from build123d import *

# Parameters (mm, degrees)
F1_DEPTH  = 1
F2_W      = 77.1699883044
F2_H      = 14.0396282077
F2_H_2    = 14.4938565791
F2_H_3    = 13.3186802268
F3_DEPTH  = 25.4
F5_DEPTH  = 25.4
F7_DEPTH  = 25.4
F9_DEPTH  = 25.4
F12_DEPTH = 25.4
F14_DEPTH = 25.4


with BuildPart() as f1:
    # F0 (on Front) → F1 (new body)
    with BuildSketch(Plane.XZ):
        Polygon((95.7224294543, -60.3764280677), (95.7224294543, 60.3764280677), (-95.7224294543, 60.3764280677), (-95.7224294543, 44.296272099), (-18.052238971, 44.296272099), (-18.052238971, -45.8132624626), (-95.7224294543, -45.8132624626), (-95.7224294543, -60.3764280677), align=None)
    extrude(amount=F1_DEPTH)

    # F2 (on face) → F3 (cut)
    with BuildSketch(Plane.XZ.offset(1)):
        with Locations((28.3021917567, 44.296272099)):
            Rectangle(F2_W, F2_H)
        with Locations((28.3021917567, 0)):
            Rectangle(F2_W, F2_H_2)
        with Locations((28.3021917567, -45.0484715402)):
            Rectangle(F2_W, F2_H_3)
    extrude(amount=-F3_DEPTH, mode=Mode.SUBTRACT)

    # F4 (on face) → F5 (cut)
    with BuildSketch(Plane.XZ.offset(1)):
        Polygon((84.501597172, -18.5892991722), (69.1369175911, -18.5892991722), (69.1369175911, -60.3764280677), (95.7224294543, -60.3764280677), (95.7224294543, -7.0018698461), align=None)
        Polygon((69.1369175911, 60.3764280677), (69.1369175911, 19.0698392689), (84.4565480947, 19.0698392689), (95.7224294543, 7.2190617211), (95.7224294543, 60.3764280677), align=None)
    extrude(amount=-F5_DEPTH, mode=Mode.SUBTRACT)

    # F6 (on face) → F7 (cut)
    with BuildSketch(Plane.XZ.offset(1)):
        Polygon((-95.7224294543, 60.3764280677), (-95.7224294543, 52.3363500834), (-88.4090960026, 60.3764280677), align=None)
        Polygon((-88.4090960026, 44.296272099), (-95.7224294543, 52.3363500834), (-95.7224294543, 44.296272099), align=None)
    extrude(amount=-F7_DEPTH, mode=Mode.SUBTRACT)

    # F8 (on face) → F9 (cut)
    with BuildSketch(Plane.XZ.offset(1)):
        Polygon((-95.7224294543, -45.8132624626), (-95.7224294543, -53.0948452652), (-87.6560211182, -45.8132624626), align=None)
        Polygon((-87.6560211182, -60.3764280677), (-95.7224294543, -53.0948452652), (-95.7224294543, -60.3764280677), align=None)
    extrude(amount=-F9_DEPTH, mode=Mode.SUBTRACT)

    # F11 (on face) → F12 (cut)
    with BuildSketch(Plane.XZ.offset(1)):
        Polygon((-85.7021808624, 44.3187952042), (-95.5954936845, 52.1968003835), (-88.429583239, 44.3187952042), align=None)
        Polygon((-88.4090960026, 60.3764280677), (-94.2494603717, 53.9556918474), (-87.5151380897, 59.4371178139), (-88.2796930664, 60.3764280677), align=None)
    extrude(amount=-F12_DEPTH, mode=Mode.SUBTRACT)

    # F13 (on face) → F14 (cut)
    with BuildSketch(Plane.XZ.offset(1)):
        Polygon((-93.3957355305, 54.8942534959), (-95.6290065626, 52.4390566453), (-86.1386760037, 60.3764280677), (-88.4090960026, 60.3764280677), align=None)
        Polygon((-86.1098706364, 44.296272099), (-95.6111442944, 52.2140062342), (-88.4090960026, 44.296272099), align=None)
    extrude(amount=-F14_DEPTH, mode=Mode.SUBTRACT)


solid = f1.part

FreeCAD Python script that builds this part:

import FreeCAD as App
import Part
import Sketcher
from FreeCAD import Vector

doc = App.newDocument("Part")
body = doc.addObject("PartDesign::Body", "Body")

# Sketch on XZ plane
sketch1 = body.newObject("Sketcher::SketchObject", "Sketch")
sketch1.AttachmentSupport = (doc.getObject("XZ_Plane"), [""])
sketch1.MapMode = "FlatFace"
sketch1.addGeometry(Part.LineSegment(Vector(95.722429, -60.376428, 0), Vector(95.722429, 60.376428, 0)), False)
sketch1.addGeometry(Part.LineSegment(Vector(95.722429, 60.376428, 0), Vector(-95.722429, 60.376428, 0)), False)
sketch1.addGeometry(Part.LineSegment(Vector(-95.722429, 60.376428, 0), Vector(-95.722429, 44.296272, 0)), False)
sketch1.addGeometry(Part.LineSegment(Vector(-95.722429, 44.296272, 0), Vector(-18.052239, 44.296272, 0)), False)
sketch1.addGeometry(Part.LineSegment(Vector(-18.052239, 44.296272, 0), Vector(-18.052239, -45.813262, 0)), False)
sketch1.addGeometry(Part.LineSegment(Vector(-18.052239, -45.813262, 0), Vector(-95.722429, -45.813262, 0)), False)
sketch1.addGeometry(Part.LineSegment(Vector(-95.722429, -45.813262, 0), Vector(-95.722429, -60.376428, 0)), False)
sketch1.addGeometry(Part.LineSegment(Vector(-95.722429, -60.376428, 0), Vector(95.722429, -60.376428, 0)), False)
sketch1.addConstraint(Sketcher.Constraint("Coincident", 0, 2, 1, 1))
sketch1.addConstraint(Sketcher.Constraint("Coincident", 1, 2, 2, 1))
sketch1.addConstraint(Sketcher.Constraint("Coincident", 2, 2, 3, 1))
sketch1.addConstraint(Sketcher.Constraint("Coincident", 3, 2, 4, 1))
sketch1.addConstraint(Sketcher.Constraint("Coincident", 4, 2, 5, 1))
sketch1.addConstraint(Sketcher.Constraint("Coincident", 5, 2, 6, 1))
sketch1.addConstraint(Sketcher.Constraint("Coincident", 6, 2, 7, 1))
sketch1.addConstraint(Sketcher.Constraint("Coincident", 7, 2, 0, 1))
sketch1.addConstraint(Sketcher.Constraint("Vertical", 0))
sketch1.addConstraint(Sketcher.Constraint("Horizontal", 1))
sketch1.addConstraint(Sketcher.Constraint("Vertical", 2))
sketch1.addConstraint(Sketcher.Constraint("Horizontal", 3))
sketch1.addConstraint(Sketcher.Constraint("Vertical", 4))
sketch1.addConstraint(Sketcher.Constraint("Horizontal", 5))
sketch1.addConstraint(Sketcher.Constraint("Vertical", 6))
sketch1.addConstraint(Sketcher.Constraint("Horizontal", 7))
sketch1.addConstraint(Sketcher.Constraint("Symmetric", 0, 2, 6, 2, -1, 1))
sketch1.addConstraint(Sketcher.Constraint("Vertical", 2, 2, 5, 2))
sketch1.addConstraint(Sketcher.Constraint("DistanceX", 1, 2, 1, 1, 191.444859))
sketch1.addConstraint(Sketcher.Constraint("DistanceX", 3, 1, 3, 2, 77.67019))
sketch1.addConstraint(Sketcher.Constraint("DistanceY", 6, 2, 2, 2, 104.6727))
sketch1.addConstraint(Sketcher.Constraint("DistanceY", 0, 1, 0, 2, 120.752856))
sketch1.addConstraint(Sketcher.Constraint("DistanceY", 4, 2, 4, 1, 90.109535))
pad1 = body.newObject("PartDesign::Pad", "Pad")
pad1.Profile = sketch1
pad1.Length = 1

# Sketch on XZ plane
sketch2 = body.newObject("Sketcher::SketchObject", "Sketch001")
sketch2.AttachmentSupport = (doc.getObject("XZ_Plane"), [""])
sketch2.MapMode = "FlatFace"
sketch2.AttachmentOffset = App.Placement(Vector(0, 0, 1), App.Rotation())
sketch2.addGeometry(Part.LineSegment(Vector(-10.282802, 51.316086, 0), Vector(-10.282802, 37.276458, 0)), False)
sketch2.addGeometry(Part.LineSegment(Vector(-10.282802, 37.276458, 0), Vector(66.887186, 37.276458, 0)), False)
sketch2.addGeometry(Part.LineSegment(Vector(66.887186, 37.276458, 0), Vector(66.887186, 51.316086, 0)), False)
sketch2.addGeometry(Part.LineSegment(Vector(66.887186, 51.316086, 0), Vector(-10.282802, 51.316086, 0)), False)
sketch2.addGeometry(Part.LineSegment(Vector(-10.282802, 7.246928, 0), Vector(-10.282802, -7.246928, 0)), False)
sketch2.addGeometry(Part.LineSegment(Vector(-10.282802, -7.246928, 0), Vector(66.887186, -7.246928, 0)), False)
sketch2.addGeometry(Part.LineSegment(Vector(66.887186, -7.246928, 0), Vector(66.887186, 7.246928, 0)), False)
sketch2.addGeometry(Part.LineSegment(Vector(66.887186, 7.246928, 0), Vector(-10.282802, 7.246928, 0)), False)
sketch2.addGeometry(Part.LineSegment(Vector(-10.282802, -38.389131, 0), Vector(-10.282802, -51.707812, 0)), False)
sketch2.addGeometry(Part.LineSegment(Vector(-10.282802, -51.707812, 0), Vector(66.887186, -51.707812, 0)), False)
sketch2.addGeometry(Part.LineSegment(Vector(66.887186, -51.707812, 0), Vector(66.887186, -38.389131, 0)), False)
sketch2.addGeometry(Part.LineSegment(Vector(66.887186, -38.389131, 0), Vector(-10.282802, -38.389131, 0)), False)
sketch2.addConstraint(Sketcher.Constraint("Coincident", 0, 2, 1, 1))
sketch2.addConstraint(Sketcher.Constraint("Coincident", 1, 2, 2, 1))
sketch2.addConstraint(Sketcher.Constraint("Coincident", 2, 2, 3, 1))
sketch2.addConstraint(Sketcher.Constraint("Coincident", 3, 2, 0, 1))
sketch2.addConstraint(Sketcher.Constraint("Coincident", 4, 2, 5, 1))
sketch2.addConstraint(Sketcher.Constraint("Coincident", 5, 2, 6, 1))
sketch2.addConstraint(Sketcher.Constraint("Coincident", 6, 2, 7, 1))
sketch2.addConstraint(Sketcher.Constraint("Coincident", 7, 2, 4, 1))
sketch2.addConstraint(Sketcher.Constraint("Coincident", 8, 2, 9, 1))
sketch2.addConstraint(Sketcher.Constraint("Coincident", 9, 2, 10, 1))
sketch2.addConstraint(Sketcher.Constraint("Coincident", 10, 2, 11, 1))
sketch2.addConstraint(Sketcher.Constraint("Coincident", 11, 2, 8, 1))
sketch2.addConstraint(Sketcher.Constraint("Vertical", 0))
sketch2.addConstraint(Sketcher.Constraint("Horizontal", 1))
sketch2.addConstraint(Sketcher.Constraint("Vertical", 2))
sketch2.addConstraint(Sketcher.Constraint("Horizontal", 3))
sketch2.addConstraint(Sketcher.Constraint("Vertical", 4))
sketch2.addConstraint(Sketcher.Constraint("Horizontal", 5))
sketch2.addConstraint(Sketcher.Constraint("Vertical", 6))
sketch2.addConstraint(Sketcher.Constraint("Horizontal", 7))
sketch2.addConstraint(Sketcher.Constraint("Vertical", 8))
sketch2.addConstraint(Sketcher.Constraint("Horizontal", 9))
sketch2.addConstraint(Sketcher.Constraint("Vertical", 10))
sketch2.addConstraint(Sketcher.Constraint("Horizontal", 11))
sketch2.addConstraint(Sketcher.Constraint("Vertical", 3, 2, 4, 2))
sketch2.addConstraint(Sketcher.Constraint("Vertical", 2, 2, 5, 2))
sketch2.addConstraint(Sketcher.Constraint("Vertical", 7, 2, 8, 2))
sketch2.addConstraint(Sketcher.Constraint("Vertical", 6, 2, 9, 2))
sketch2.addConstraint(Sketcher.Constraint("DistanceX", 1, 1, 1, 2, 77.169988))
sketch2.addConstraint(Sketcher.Constraint("DistanceY", 0, 2, 0, 1, 14.039628))
sketch2.addConstraint(Sketcher.Constraint("DistanceY", 8, 2, 8, 1, 13.31868))
sketch2.addConstraint(Sketcher.Constraint("DistanceY", 4, 2, 4, 1, 14.493857))
sketch2.addConstraint(Sketcher.Constraint("DistanceY", 4, 2, -1, 1, 7.246928))
sketch2.addConstraint(Sketcher.Constraint("DistanceY", 8, 2, -1, 1, 51.707812))
sketch2.addConstraint(Sketcher.Constraint("DistanceY", 6, 2, 1, 2, 30.02953))
sketch2.addConstraint(Sketcher.Constraint("DistanceX", 0, 2, -1, 1, 10.282802))
pocket1 = body.newObject("PartDesign::Pocket", "Pocket")
pocket1.Profile = sketch2
pocket1.Length = 25.4

# Sketch on XZ plane
sketch3 = body.newObject("Sketcher::SketchObject", "Sketch002")
sketch3.AttachmentSupport = (doc.getObject("XZ_Plane"), [""])
sketch3.MapMode = "FlatFace"
sketch3.AttachmentOffset = App.Placement(Vector(0, 0, 1), App.Rotation())
sketch3.addGeometry(Part.LineSegment(Vector(84.501597, -18.589299, 0), Vector(69.136918, -18.589299, 0)), False)
sketch3.addGeometry(Part.LineSegment(Vector(69.136918, -18.589299, 0), Vector(69.136918, -60.376428, 0)), False)
sketch3.addGeometry(Part.LineSegment(Vector(69.136918, -60.376428, 0), Vector(95.722429, -60.376428, 0)), False)
sketch3.addGeometry(Part.LineSegment(Vector(95.722429, -60.376428, 0), Vector(95.722429, -7.00187, 0)), False)
sketch3.addGeometry(Part.LineSegment(Vector(95.722429, -7.00187, 0), Vector(84.501597, -18.589299, 0)), False)
sketch3.addGeometry(Part.LineSegment(Vector(69.136918, 60.376428, 0), Vector(69.136918, 19.069839, 0)), False)
sketch3.addGeometry(Part.LineSegment(Vector(69.136918, 19.069839, 0), Vector(84.456548, 19.069839, 0)), False)
sketch3.addGeometry(Part.LineSegment(Vector(84.456548, 19.069839, 0), Vector(95.722429, 7.219062, 0)), False)
sketch3.addGeometry(Part.LineSegment(Vector(95.722429, 7.219062, 0), Vector(95.722429, 60.376428, 0)), False)
sketch3.addGeometry(Part.LineSegment(Vector(95.722429, 60.376428, 0), Vector(69.136918, 60.376428, 0)), False)
sketch3.addConstraint(Sketcher.Constraint("Coincident", 0, 2, 1, 1))
sketch3.addConstraint(Sketcher.Constraint("Coincident", 1, 2, 2, 1))
sketch3.addConstraint(Sketcher.Constraint("Coincident", 2, 2, 3, 1))
sketch3.addConstraint(Sketcher.Constraint("Coincident", 3, 2, 4, 1))
sketch3.addConstraint(Sketcher.Constraint("Coincident", 4, 2, 0, 1))
sketch3.addConstraint(Sketcher.Constraint("Coincident", 5, 2, 6, 1))
sketch3.addConstraint(Sketcher.Constraint("Coincident", 6, 2, 7, 1))
sketch3.addConstraint(Sketcher.Constraint("Coincident", 7, 2, 8, 1))
sketch3.addConstraint(Sketcher.Constraint("Coincident", 8, 2, 9, 1))
sketch3.addConstraint(Sketcher.Constraint("Coincident", 9, 2, 5, 1))
sketch3.addConstraint(Sketcher.Constraint("Horizontal", 0))
sketch3.addConstraint(Sketcher.Constraint("Vertical", 1))
sketch3.addConstraint(Sketcher.Constraint("Horizontal", 2))
sketch3.addConstraint(Sketcher.Constraint("Vertical", 3))
sketch3.addConstraint(Sketcher.Constraint("Vertical", 5))
sketch3.addConstraint(Sketcher.Constraint("Horizontal", 6))
sketch3.addConstraint(Sketcher.Constraint("Vertical", 8))
sketch3.addConstraint(Sketcher.Constraint("Horizontal", 9))
sketch3.addConstraint(Sketcher.Constraint("Symmetric", 2, 2, 8, 2, -1))
sketch3.addConstraint(Sketcher.Constraint("Vertical", 1, 2, 5, 2))
sketch3.addConstraint(Sketcher.Constraint("DistanceX", 0, 2, 0, 1, 15.36468))
sketch3.addConstraint(Sketcher.Constraint("DistanceX", 2, 1, 2, 2, 26.585512))
sketch3.addConstraint(Sketcher.Constraint("DistanceX", 6, 1, 6, 2, 15.319631))
sketch3.addConstraint(Sketcher.Constraint("DistanceY", 1, 2, 1, 1, 41.787129))
sketch3.addConstraint(Sketcher.Constraint("DistanceY", 3, 1, 3, 2, 53.374558))
sketch3.addConstraint(Sketcher.Constraint("DistanceY", 5, 2, 5, 1, 41.306589))
sketch3.addConstraint(Sketcher.Constraint("DistanceY", 0, 2, -1, 1, 18.589299))
sketch3.addConstraint(Sketcher.Constraint("DistanceY", 8, 1, 8, 2, 53.157366))
sketch3.addConstraint(Sketcher.Constraint("DistanceX", -1, 1, 2, 2, 95.722429))
pocket2 = body.newObject("PartDesign::Pocket", "Pocket001")
pocket2.Profile = sketch3
pocket2.Length = 25.4

# Sketch on XZ plane
sketch4 = body.newObject("Sketcher::SketchObject", "Sketch003")
sketch4.AttachmentSupport = (doc.getObject("XZ_Plane"), [""])
sketch4.MapMode = "FlatFace"
sketch4.AttachmentOffset = App.Placement(Vector(0, 0, 1), App.Rotation())
sketch4.addGeometry(Part.LineSegment(Vector(-95.722429, 60.376428, 0), Vector(-95.722429, 52.33635, 0)), False)
sketch4.addGeometry(Part.LineSegment(Vector(-95.722429, 52.33635, 0), Vector(-88.409096, 60.376428, 0)), False)
sketch4.addGeometry(Part.LineSegment(Vector(-88.409096, 60.376428, 0), Vector(-95.722429, 60.376428, 0)), False)
sketch4.addGeometry(Part.LineSegment(Vector(-88.409096, 44.296272, 0), Vector(-95.722429, 52.33635, 0)), False)
sketch4.addGeometry(Part.LineSegment(Vector(-95.722429, 52.33635, 0), Vector(-95.722429, 44.296272, 0)), False)
sketch4.addGeometry(Part.LineSegment(Vector(-95.722429, 44.296272, 0), Vector(-88.409096, 44.296272, 0)), False)
sketch4.addConstraint(Sketcher.Constraint("Coincident", 0, 2, 1, 1))
sketch4.addConstraint(Sketcher.Constraint("Coincident", 1, 2, 2, 1))
sketch4.addConstraint(Sketcher.Constraint("Coincident", 2, 2, 0, 1))
sketch4.addConstraint(Sketcher.Constraint("Coincident", 3, 2, 4, 1))
sketch4.addConstraint(Sketcher.Constraint("Coincident", 4, 2, 5, 1))
sketch4.addConstraint(Sketcher.Constraint("Coincident", 5, 2, 3, 1))
sketch4.addConstraint(Sketcher.Constraint("Vertical", 0))
sketch4.addConstraint(Sketcher.Constraint("Horizontal", 2))
sketch4.addConstraint(Sketcher.Constraint("Vertical", 4))
sketch4.addConstraint(Sketcher.Constraint("Horizontal", 5))
sketch4.addConstraint(Sketcher.Constraint("Coincident", 3, 2, 0, 2))
sketch4.addConstraint(Sketcher.Constraint("Vertical", 1, 2, 5, 2))
sketch4.addConstraint(Sketcher.Constraint("Equal", 0, 4))
sketch4.addConstraint(Sketcher.Constraint("DistanceX", 2, 2, 2, 1, 7.313333))
sketch4.addConstraint(Sketcher.Constraint("DistanceY", 0, 2, 0, 1, 8.040078))
sketch4.addConstraint(Sketcher.Constraint("DistanceX", 0, 2, -1, 1, 95.722429))
sketch4.addConstraint(Sketcher.Constraint("DistanceY", -1, 1, 0, 2, 52.33635))
pocket3 = body.newObject("PartDesign::Pocket", "Pocket002")
pocket3.Profile = sketch4
pocket3.Length = 25.4

# Sketch on XZ plane
sketch5 = body.newObject("Sketcher::SketchObject", "Sketch004")
sketch5.AttachmentSupport = (doc.getObject("XZ_Plane"), [""])
sketch5.MapMode = "FlatFace"
sketch5.AttachmentOffset = App.Placement(Vector(0, 0, 1), App.Rotation())
sketch5.addGeometry(Part.LineSegment(Vector(-95.722429, -45.813262, 0), Vector(-95.722429, -53.094845, 0)), False)
sketch5.addGeometry(Part.LineSegment(Vector(-95.722429, -53.094845, 0), Vector(-87.656021, -45.813262, 0)), False)
sketch5.addGeometry(Part.LineSegment(Vector(-87.656021, -45.813262, 0), Vector(-95.722429, -45.813262, 0)), False)
sketch5.addGeometry(Part.LineSegment(Vector(-87.656021, -60.376428, 0), Vector(-95.722429, -53.094845, 0)), False)
sketch5.addGeometry(Part.LineSegment(Vector(-95.722429, -53.094845, 0), Vector(-95.722429, -60.376428, 0)), False)
sketch5.addGeometry(Part.LineSegment(Vector(-95.722429, -60.376428, 0), Vector(-87.656021, -60.376428, 0)), False)
sketch5.addConstraint(Sketcher.Constraint("Coincident", 0, 2, 1, 1))
sketch5.addConstraint(Sketcher.Constraint("Coincident", 1, 2, 2, 1))
sketch5.addConstraint(Sketcher.Constraint("Coincident", 2, 2, 0, 1))
sketch5.addConstraint(Sketcher.Constraint("Coincident", 3, 2, 4, 1))
sketch5.addConstraint(Sketcher.Constraint("Coincident", 4, 2, 5, 1))
sketch5.addConstraint(Sketcher.Constraint("Coincident", 5, 2, 3, 1))
sketch5.addConstraint(Sketcher.Constraint("Vertical", 0))
sketch5.addConstraint(Sketcher.Constraint("Horizontal", 2))
sketch5.addConstraint(Sketcher.Constraint("Vertical", 4))
sketch5.addConstraint(Sketcher.Constraint("Horizontal", 5))
sketch5.addConstraint(Sketcher.Constraint("Coincident", 3, 2, 0, 2))
sketch5.addConstraint(Sketcher.Constraint("Vertical", 1, 2, 5, 2))
sketch5.addConstraint(Sketcher.Constraint("Equal", 0, 4))
sketch5.addConstraint(Sketcher.Constraint("DistanceX", 2, 2, 2, 1, 8.066408))
sketch5.addConstraint(Sketcher.Constraint("Distance", 1, 10.866848))
sketch5.addConstraint(Sketcher.Constraint("DistanceX", 0, 2, -1, 1, 95.722429))
sketch5.addConstraint(Sketcher.Constraint("DistanceY", 4, 2, -1, 1, 60.376428))
pocket4 = body.newObject("PartDesign::Pocket", "Pocket003")
pocket4.Profile = sketch5
pocket4.Length = 25.4

# Sketch on XZ plane
sketch6 = body.newObject("Sketcher::SketchObject", "Sketch005")
sketch6.AttachmentSupport = (doc.getObject("XZ_Plane"), [""])
sketch6.MapMode = "FlatFace"
sketch6.AttachmentOffset = App.Placement(Vector(0, 0, 1), App.Rotation())
sketch6.addGeometry(Part.LineSegment(Vector(-85.702181, 44.318795, 0), Vector(-95.595494, 52.1968, 0)), False)
sketch6.addGeometry(Part.LineSegment(Vector(-95.595494, 52.1968, 0), Vector(-88.429583, 44.318795, 0)), False)
sketch6.addGeometry(Part.LineSegment(Vector(-88.429583, 44.318795, 0), Vector(-85.702181, 44.318795, 0)), False)
sketch6.addGeometry(Part.LineSegment(Vector(-88.409096, 60.376428, 0), Vector(-94.24946, 53.955692, 0)), False)
sketch6.addGeometry(Part.LineSegment(Vector(-94.24946, 53.955692, 0), Vector(-87.515138, 59.437118, 0)), False)
sketch6.addGeometry(Part.LineSegment(Vector(-87.515138, 59.437118, 0), Vector(-88.279693, 60.376428, 0)), False)
sketch6.addGeometry(Part.LineSegment(Vector(-88.279693, 60.376428, 0), Vector(-88.409096, 60.376428, 0)), False)
sketch6.addConstraint(Sketcher.Constraint("Coincident", 0, 2, 1, 1))
sketch6.addConstraint(Sketcher.Constraint("Coincident", 1, 2, 2, 1))
sketch6.addConstraint(Sketcher.Constraint("Coincident", 2, 2, 0, 1))
sketch6.addConstraint(Sketcher.Constraint("Coincident", 3, 2, 4, 1))
sketch6.addConstraint(Sketcher.Constraint("Coincident", 4, 2, 5, 1))
sketch6.addConstraint(Sketcher.Constraint("Coincident", 5, 2, 6, 1))
sketch6.addConstraint(Sketcher.Constraint("Coincident", 6, 2, 3, 1))
sketch6.addConstraint(Sketcher.Constraint("Horizontal", 2))
sketch6.addConstraint(Sketcher.Constraint("Horizontal", 6))
sketch6.addConstraint(Sketcher.Constraint("Perpendicular", 4, 5))
sketch6.addConstraint(Sketcher.Constraint("DistanceY", -1, 1, 0, 2, 52.1968))
sketch6.addConstraint(Sketcher.Constraint("DistanceX", 0, 2, 5, 2, 7.315801))
sketch6.addConstraint(Sketcher.Constraint("Distance", 4, 8.683152))
sketch6.addConstraint(Sketcher.Constraint("DistanceX", 2, 1, 2, 2, 2.727402))
sketch6.addConstraint(Sketcher.Constraint("DistanceX", 6, 2, 6, 1, 0.129403))
sketch6.addConstraint(Sketcher.Constraint("DistanceX", 2, 2, -1, 1, 85.702181))
sketch6.addConstraint(Sketcher.Constraint("DistanceX", 3, 2, -1, 1, 94.24946))
sketch6.addConstraint(Sketcher.Constraint("DistanceY", -1, 1, 3, 2, 53.955692))
sketch6.addConstraint(Sketcher.Constraint("DistanceX", 4, 2, -1, 1, 87.515138))
sketch6.addConstraint(Sketcher.Constraint("DistanceY", -1, 1, 5, 2, 60.376428))
sketch6.addConstraint(Sketcher.Constraint("Distance", 0, 12.646763))
pocket5 = body.newObject("PartDesign::Pocket", "Pocket004")
pocket5.Profile = sketch6
pocket5.Length = 25.4

# Sketch on XZ plane
sketch7 = body.newObject("Sketcher::SketchObject", "Sketch006")
sketch7.AttachmentSupport = (doc.getObject("XZ_Plane"), [""])
sketch7.MapMode = "FlatFace"
sketch7.AttachmentOffset = App.Placement(Vector(0, 0, 1), App.Rotation())
sketch7.addGeometry(Part.LineSegment(Vector(-93.395736, 54.894253, 0), Vector(-95.629007, 52.439057, 0)), False)
sketch7.addGeometry(Part.LineSegment(Vector(-95.629007, 52.439057, 0), Vector(-86.138676, 60.376428, 0)), False)
sketch7.addGeometry(Part.LineSegment(Vector(-86.138676, 60.376428, 0), Vector(-88.409096, 60.376428, 0)), False)
sketch7.addGeometry(Part.LineSegment(Vector(-88.409096, 60.376428, 0), Vector(-93.395736, 54.894253, 0)), False)
sketch7.addGeometry(Part.LineSegment(Vector(-86.109871, 44.296272, 0), Vector(-95.611144, 52.214006, 0)), False)
sketch7.addGeometry(Part.LineSegment(Vector(-95.611144, 52.214006, 0), Vector(-88.409096, 44.296272, 0)), False)
sketch7.addGeometry(Part.LineSegment(Vector(-88.409096, 44.296272, 0), Vector(-86.109871, 44.296272, 0)), False)
sketch7.addConstraint(Sketcher.Constraint("Coincident", 0, 2, 1, 1))
sketch7.addConstraint(Sketcher.Constraint("Coincident", 1, 2, 2, 1))
sketch7.addConstraint(Sketcher.Constraint("Coincident", 2, 2, 3, 1))
sketch7.addConstraint(Sketcher.Constraint("Coincident", 3, 2, 0, 1))
sketch7.addConstraint(Sketcher.Constraint("Coincident", 4, 2, 5, 1))
sketch7.addConstraint(Sketcher.Constraint("Coincident", 5, 2, 6, 1))
sketch7.addConstraint(Sketcher.Constraint("Coincident", 6, 2, 4, 1))
sketch7.addConstraint(Sketcher.Constraint("Horizontal", 2))
sketch7.addConstraint(Sketcher.Constraint("Horizontal", 6))
sketch7.addConstraint(Sketcher.Constraint("Parallel", 0, 3))
sketch7.addConstraint(Sketcher.Constraint("Vertical", 2, 2, 5, 2))
sketch7.addConstraint(Sketcher.Constraint("DistanceX", 2, 2, 2, 1, 2.27042))
sketch7.addConstraint(Sketcher.Constraint("Distance", 0, 3.318959))
sketch7.addConstraint(Sketcher.Constraint("Distance", 4, 12.36789))
sketch7.addConstraint(Sketcher.Constraint("Distance", 5, 10.703271))
sketch7.addConstraint(Sketcher.Constraint("DistanceX", 6, 1, 6, 2, 2.299225))
sketch7.addConstraint(Sketcher.Constraint("DistanceY", -1, 1, 1, 2, 60.376428))
sketch7.addConstraint(Sketcher.Constraint("DistanceX", 6, 2, -1, 1, 86.109871))
sketch7.addConstraint(Sketcher.Constraint("DistanceX", 0, 2, 1, 2, 9.490331))
sketch7.addConstraint(Sketcher.Constraint("DistanceY", 0, 2, 1, 2, 7.937371))
sketch7.addConstraint(Sketcher.Constraint("DistanceY", 4, 2, 0, 2, 0.22505))
pocket6 = body.newObject("PartDesign::Pocket", "Pocket005")
pocket6.Profile = sketch7
pocket6.Length = 25.4

doc.recompute()
